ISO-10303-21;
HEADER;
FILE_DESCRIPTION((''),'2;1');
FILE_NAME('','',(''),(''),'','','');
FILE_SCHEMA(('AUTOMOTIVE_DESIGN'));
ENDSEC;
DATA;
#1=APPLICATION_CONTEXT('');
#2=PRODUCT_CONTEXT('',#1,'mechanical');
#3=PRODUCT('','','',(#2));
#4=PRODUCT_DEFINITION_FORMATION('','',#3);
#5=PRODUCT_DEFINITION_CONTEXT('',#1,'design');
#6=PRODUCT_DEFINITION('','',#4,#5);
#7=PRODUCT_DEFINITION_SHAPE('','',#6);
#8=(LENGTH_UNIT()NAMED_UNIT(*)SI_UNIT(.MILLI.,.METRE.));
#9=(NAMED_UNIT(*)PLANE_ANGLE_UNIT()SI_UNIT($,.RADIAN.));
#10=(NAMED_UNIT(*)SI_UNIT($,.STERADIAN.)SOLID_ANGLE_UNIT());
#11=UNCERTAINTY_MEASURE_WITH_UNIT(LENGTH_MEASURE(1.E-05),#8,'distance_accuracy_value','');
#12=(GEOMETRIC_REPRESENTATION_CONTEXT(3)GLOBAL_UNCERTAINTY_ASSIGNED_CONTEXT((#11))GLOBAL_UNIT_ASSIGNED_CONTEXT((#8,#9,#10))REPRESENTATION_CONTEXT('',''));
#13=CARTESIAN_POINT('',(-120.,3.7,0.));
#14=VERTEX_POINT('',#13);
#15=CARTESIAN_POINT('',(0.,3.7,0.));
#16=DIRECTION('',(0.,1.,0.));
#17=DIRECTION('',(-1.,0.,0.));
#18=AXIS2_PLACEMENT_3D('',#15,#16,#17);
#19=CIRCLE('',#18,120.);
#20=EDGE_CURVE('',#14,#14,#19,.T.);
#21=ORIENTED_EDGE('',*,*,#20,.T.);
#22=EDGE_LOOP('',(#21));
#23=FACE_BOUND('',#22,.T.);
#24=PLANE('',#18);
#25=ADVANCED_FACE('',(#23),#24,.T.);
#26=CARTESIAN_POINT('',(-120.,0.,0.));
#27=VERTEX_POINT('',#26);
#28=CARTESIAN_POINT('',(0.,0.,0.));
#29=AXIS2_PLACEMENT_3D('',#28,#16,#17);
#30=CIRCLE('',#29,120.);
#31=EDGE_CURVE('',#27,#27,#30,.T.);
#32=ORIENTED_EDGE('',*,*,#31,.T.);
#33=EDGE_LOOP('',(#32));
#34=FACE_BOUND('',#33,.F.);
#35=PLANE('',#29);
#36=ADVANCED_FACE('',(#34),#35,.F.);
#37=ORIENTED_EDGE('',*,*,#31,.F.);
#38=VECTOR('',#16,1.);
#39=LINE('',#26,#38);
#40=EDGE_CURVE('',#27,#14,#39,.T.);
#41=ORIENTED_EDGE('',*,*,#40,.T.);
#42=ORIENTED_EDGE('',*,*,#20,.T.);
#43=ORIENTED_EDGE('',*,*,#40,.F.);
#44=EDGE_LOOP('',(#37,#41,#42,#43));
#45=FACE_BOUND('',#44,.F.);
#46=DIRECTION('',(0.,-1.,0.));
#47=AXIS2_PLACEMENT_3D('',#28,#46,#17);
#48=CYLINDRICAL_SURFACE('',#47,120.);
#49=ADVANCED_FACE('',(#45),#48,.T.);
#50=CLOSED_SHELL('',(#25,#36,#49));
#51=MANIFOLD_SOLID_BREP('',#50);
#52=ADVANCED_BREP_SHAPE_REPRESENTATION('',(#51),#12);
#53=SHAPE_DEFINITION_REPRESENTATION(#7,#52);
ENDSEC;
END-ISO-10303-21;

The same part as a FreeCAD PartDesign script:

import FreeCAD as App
import Part
import Sketcher

V = App.Vector
Q = App.Units.Quantity

doc = App.newDocument("Part")
body = doc.addObject("PartDesign::Body", "Body")

# Sketch on XZ plane
sketch1 = body.newObject("Sketcher::SketchObject", "Sketch")
sketch1.AttachmentSupport = (doc.getObject("XZ_Plane"), [""])
sketch1.MapMode = "FlatFace"
sketch1.addGeometry(Part.Circle(V(0, 0, 0), V(0, 0, 1), 120), False)
sketch1.addConstraint(Sketcher.Constraint("Coincident", 0, 3, -1, 1))
sketch1.addConstraint(Sketcher.Constraint("Diameter", 0, Q("240 mm")))
pad1 = body.newObject("PartDesign::Pad", "Pad")
pad1.Profile = sketch1
pad1.Length = 3.7
pad1.Reversed = True

doc.recompute()
